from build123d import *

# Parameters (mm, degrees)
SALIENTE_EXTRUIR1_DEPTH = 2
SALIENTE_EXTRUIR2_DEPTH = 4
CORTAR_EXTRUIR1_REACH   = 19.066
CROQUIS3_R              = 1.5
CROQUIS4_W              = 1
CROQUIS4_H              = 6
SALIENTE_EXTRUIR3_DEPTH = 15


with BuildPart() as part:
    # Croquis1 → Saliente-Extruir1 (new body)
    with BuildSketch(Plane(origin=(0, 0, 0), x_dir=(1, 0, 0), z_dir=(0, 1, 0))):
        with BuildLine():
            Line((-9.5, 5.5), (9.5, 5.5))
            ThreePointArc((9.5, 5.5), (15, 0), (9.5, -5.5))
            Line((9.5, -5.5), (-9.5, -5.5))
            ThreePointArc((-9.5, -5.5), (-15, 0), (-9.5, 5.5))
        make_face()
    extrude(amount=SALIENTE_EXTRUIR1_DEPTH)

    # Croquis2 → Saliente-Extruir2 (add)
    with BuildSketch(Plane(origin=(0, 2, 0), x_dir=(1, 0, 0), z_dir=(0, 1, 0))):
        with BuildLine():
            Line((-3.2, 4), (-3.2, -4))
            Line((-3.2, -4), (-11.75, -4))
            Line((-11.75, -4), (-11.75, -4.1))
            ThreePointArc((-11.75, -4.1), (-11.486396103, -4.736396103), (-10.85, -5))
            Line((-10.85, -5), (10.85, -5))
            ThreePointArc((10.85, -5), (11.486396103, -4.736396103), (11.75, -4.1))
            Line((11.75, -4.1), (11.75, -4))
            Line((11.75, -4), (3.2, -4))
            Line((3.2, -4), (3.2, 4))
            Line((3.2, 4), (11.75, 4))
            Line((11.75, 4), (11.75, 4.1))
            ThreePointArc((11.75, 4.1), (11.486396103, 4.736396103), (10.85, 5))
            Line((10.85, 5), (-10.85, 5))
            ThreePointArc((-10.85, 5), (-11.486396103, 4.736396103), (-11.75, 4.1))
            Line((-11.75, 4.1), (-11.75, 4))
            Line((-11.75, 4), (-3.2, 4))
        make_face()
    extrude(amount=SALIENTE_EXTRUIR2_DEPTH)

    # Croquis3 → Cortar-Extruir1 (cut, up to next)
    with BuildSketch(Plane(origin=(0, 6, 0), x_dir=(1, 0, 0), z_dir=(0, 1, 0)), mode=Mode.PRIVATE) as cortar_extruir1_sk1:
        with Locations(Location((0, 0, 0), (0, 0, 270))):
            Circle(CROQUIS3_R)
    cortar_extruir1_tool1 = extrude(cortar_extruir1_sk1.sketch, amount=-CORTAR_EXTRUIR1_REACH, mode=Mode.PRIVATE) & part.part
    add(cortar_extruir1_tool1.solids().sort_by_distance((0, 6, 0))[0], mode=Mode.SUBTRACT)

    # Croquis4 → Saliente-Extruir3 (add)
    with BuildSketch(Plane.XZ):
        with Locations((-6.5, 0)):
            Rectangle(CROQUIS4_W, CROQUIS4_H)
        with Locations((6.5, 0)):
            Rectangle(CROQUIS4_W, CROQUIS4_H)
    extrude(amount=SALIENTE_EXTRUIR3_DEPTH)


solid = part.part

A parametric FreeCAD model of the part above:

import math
import FreeCAD as App
import Part
import Sketcher

V = App.Vector

doc = App.newDocument("Part")
params = doc.addObject("Spreadsheet::Sheet", "Params")
for row, (alias, value) in enumerate([
    ("sketch1_radius", "5.5 mm"),
    ("sketch1_width", "19 mm"),
    ("pad1_length", "2 mm"),
    ("sketch2_radius", "0.9 mm"),
    ("sketch2_height", "8 mm"),
    ("sketch2_width", "21.7 mm"),
    ("sketch2_height2", "0.1 mm"),
    ("sketch2_width2", "8.55 mm"),
    ("pad2_length", "4 mm"),
    ("sketch3_diameter", "3 mm"),
    ("sketch4_width", "1 mm"),
    ("sketch4_height", "6 mm"),
    ("pad3_length", "15 mm"),
], start=1):
    params.set(f"A{row}", alias)
    params.set(f"B{row}", "=" + value)
    params.setAlias(f"B{row}", alias)

body = doc.addObject("PartDesign::Body", "Body")

# Sketch on XZ plane
sketch1 = doc.addObject("Sketcher::SketchObject", "Sketch")
body.addObject(sketch1)
sketch1.AttachmentSupport = (doc.XZ_Plane, [""])
sketch1.MapMode = "FlatFace"
sketch1.addGeometry([
    Part.LineSegment(V(9.5, -5.5, 0), V(-9.5, -5.5, 0)),
    Part.ArcOfCircle(Part.Circle(V(-9.5, 0, 0), V(0, 0, 1), 5.5), math.radians(90), math.radians(270)),
    Part.LineSegment(V(-9.5, 5.5, 0), V(9.5, 5.5, 0)),
    Part.ArcOfCircle(Part.Circle(V(9.5, 0, 0), V(0, 0, 1), 5.5), math.radians(-90), math.radians(90)),
], False)
sketch1.addConstraint([
    Sketcher.Constraint("Tangent", 0, 2, 1, 2),
    Sketcher.Constraint("Tangent", 1, 1, 2, 1),
    Sketcher.Constraint("Tangent", 2, 2, 3, 2),
    Sketcher.Constraint("Tangent", 3, 1, 0, 1),
    Sketcher.Constraint("Horizontal", 0),
    Sketcher.Constraint("Horizontal", 2),
    Sketcher.Constraint("Symmetric", 1, 3, 3, 3, -1, 1),
    Sketcher.Constraint("Radius", 1, 5.5),
    Sketcher.Constraint("DistanceX", 0, 2, 0, 1, 19.0),
])
sketch1.setExpression("Constraints[7]", "Params.sketch1_radius")
sketch1.setExpression("Constraints[8]", "Params.sketch1_width")
pad1 = doc.addObject("PartDesign::Pad", "Pad")
body.addObject(pad1)
pad1.Profile = sketch1
pad1.setExpression("Length", "Params.pad1_length")
pad1.Reversed = True

# Sketch on XZ plane
sketch2 = doc.addObject("Sketcher::SketchObject", "Sketch001")
body.addObject(sketch2)
sketch2.AttachmentSupport = (doc.XZ_Plane, [""])
sketch2.MapMode = "FlatFace"
sketch2.AttachmentOffset = App.Placement(V(0, 0, -2), App.Rotation())
sketch2.addGeometry([
    Part.LineSegment(V(-3.2, -4, 0), V(-3.2, 4, 0)),  # 0
    Part.LineSegment(V(-3.2, 4, 0), V(-11.75, 4, 0)),  # 1
    Part.LineSegment(V(-11.75, 4, 0), V(-11.75, 4.1, 0)),  # 2
    Part.ArcOfCircle(Part.Circle(V(-10.85, 4.1, 0), V(0, 0, 1), 0.9), math.radians(90), math.radians(180)),  # 3
    Part.LineSegment(V(-10.85, 5, 0), V(10.85, 5, 0)),  # 4
    Part.ArcOfCircle(Part.Circle(V(10.85, 4.1, 0), V(0, 0, 1), 0.9), math.radians(0), math.radians(90)),  # 5
    Part.LineSegment(V(11.75, 4.1, 0), V(11.75, 4, 0)),  # 6
    Part.LineSegment(V(11.75, 4, 0), V(3.2, 4, 0)),  # 7
    Part.LineSegment(V(3.2, 4, 0), V(3.2, -4, 0)),  # 8
    Part.LineSegment(V(3.2, -4, 0), V(11.75, -4, 0)),  # 9
    Part.LineSegment(V(11.75, -4, 0), V(11.75, -4.1, 0)),  # 10
    Part.ArcOfCircle(Part.Circle(V(10.85, -4.1, 0), V(0, 0, 1), 0.9), math.radians(-90), math.radians(0)),  # 11
    Part.LineSegment(V(10.85, -5, 0), V(-10.85, -5, 0)),  # 12
    Part.ArcOfCircle(Part.Circle(V(-10.85, -4.1, 0), V(0, 0, 1), 0.9), math.radians(180), math.radians(270)),  # 13
    Part.LineSegment(V(-11.75, -4.1, 0), V(-11.75, -4, 0)),  # 14
    Part.LineSegment(V(-11.75, -4, 0), V(-3.2, -4, 0)),  # 15
], False)
sketch2.addConstraint([
    Sketcher.Constraint("Coincident", 0, 2, 1, 1),
    Sketcher.Constraint("Coincident", 1, 2, 2, 1),
    Sketcher.Constraint("Tangent", 2, 2, 3, 2),
    Sketcher.Constraint("Tangent", 3, 1, 4, 1),
    Sketcher.Constraint("Tangent", 4, 2, 5, 2),
    Sketcher.Constraint("Tangent", 5, 1, 6, 1),
    Sketcher.Constraint("Coincident", 6, 2, 7, 1),
    Sketcher.Constraint("Coincident", 7, 2, 8, 1),
    Sketcher.Constraint("Coincident", 8, 2, 9, 1),
    Sketcher.Constraint("Coincident", 9, 2, 10, 1),
    Sketcher.Constraint("Tangent", 10, 2, 11, 2),
    Sketcher.Constraint("Tangent", 11, 1, 12, 1),
    Sketcher.Constraint("Tangent", 12, 2, 13, 2),
    Sketcher.Constraint("Tangent", 13, 1, 14, 1),
    Sketcher.Constraint("Coincident", 14, 2, 15, 1),
    Sketcher.Constraint("Coincident", 15, 2, 0, 1),
    Sketcher.Constraint("Vertical", 0),
    Sketcher.Constraint("Horizontal", 1),
    Sketcher.Constraint("Vertical", 2),
    Sketcher.Constraint("Horizontal", 4),
    Sketcher.Constraint("Vertical", 6),
    Sketcher.Constraint("Horizontal", 7),
    Sketcher.Constraint("Vertical", 8),
    Sketcher.Constraint("Horizontal", 9),
    Sketcher.Constraint("Vertical", 10),
    Sketcher.Constraint("Horizontal", 12),
    Sketcher.Constraint("Vertical", 14),
    Sketcher.Constraint("Horizontal", 15),
    Sketcher.Constraint("Equal", 3, 5),
    Sketcher.Constraint("Equal", 5, 11),
    Sketcher.Constraint("Equal", 11, 13),
    Sketcher.Constraint("Symmetric", 3, 3, 11, 3, -1, 1),
    Sketcher.Constraint("Symmetric", 0, 2, 8, 2, -1, 1),
    Sketcher.Constraint("Symmetric", 6, 2, 14, 2, -1, 1),
    Sketcher.Constraint("Symmetric", 1, 2, 6, 2, -2),
    Sketcher.Constraint("Radius", 3, 0.9),
    Sketcher.Constraint("DistanceY", 0, 1, 0, 2, 8.0),
    Sketcher.Constraint("DistanceX", 4, 1, 4, 2, 21.7),
    Sketcher.Constraint("DistanceY", 2, 1, 2, 2, 0.1),
    Sketcher.Constraint("DistanceX", 1, 2, 1, 1, 8.55),
])
sketch2.setExpression("Constraints[35]", "Params.sketch2_radius")
sketch2.setExpression("Constraints[36]", "Params.sketch2_height")
sketch2.setExpression("Constraints[37]", "Params.sketch2_width")
sketch2.setExpression("Constraints[38]", "Params.sketch2_height2")
sketch2.setExpression("Constraints[39]", "Params.sketch2_width2")
pad2 = doc.addObject("PartDesign::Pad", "Pad001")
body.addObject(pad2)
pad2.Profile = sketch2
pad2.setExpression("Length", "Params.pad2_length")
pad2.Reversed = True

# Sketch on XZ plane
sketch3 = doc.addObject("Sketcher::SketchObject", "Sketch002")
body.addObject(sketch3)
sketch3.AttachmentSupport = (doc.XZ_Plane, [""])
sketch3.MapMode = "FlatFace"
sketch3.AttachmentOffset = App.Placement(V(0, 0, -6), App.Rotation())
sketch3.addGeometry(Part.Circle(V(0, 0, 0), V(0, 0, 1), 1.5), False)
sketch3.addConstraint([
    Sketcher.Constraint("Coincident", 0, 3, -1, 1),
    Sketcher.Constraint("Diameter", 0, 3.0),
])
sketch3.setExpression("Constraints[1]", "Params.sketch3_diameter")
pocket1 = doc.addObject("PartDesign::Pocket", "Pocket")
body.addObject(pocket1)
pocket1.Profile = sketch3
pocket1.Type = "UpToFirst"
pocket1.Reversed = True

# Sketch on XZ plane
sketch4 = doc.addObject("Sketcher::SketchObject", "Sketch003")
body.addObject(sketch4)
sketch4.AttachmentSupport = (doc.XZ_Plane, [""])
sketch4.MapMode = "FlatFace"
sketch4.addGeometry([
    Part.LineSegment(V(-7, 3, 0), V(-7, -3, 0)),  # 0
    Part.LineSegment(V(-7, -3, 0), V(-6, -3, 0)),  # 1
    Part.LineSegment(V(-6, -3, 0), V(-6, 3, 0)),  # 2
    Part.LineSegment(V(-6, 3, 0), V(-7, 3, 0)),  # 3
    Part.LineSegment(V(6, 3, 0), V(6, -3, 0)),  # 4
    Part.LineSegment(V(6, -3, 0), V(7, -3, 0)),  # 5
    Part.LineSegment(V(7, -3, 0), V(7, 3, 0)),  # 6
    Part.LineSegment(V(7, 3, 0), V(6, 3, 0)),  # 7
], False)
sketch4.addConstraint([
    Sketcher.Constraint("Coincident", 0, 2, 1, 1),
    Sketcher.Constraint("Coincident", 1, 2, 2, 1),
    Sketcher.Constraint("Coincident", 2, 2, 3, 1),
    Sketcher.Constraint("Coincident", 3, 2, 0, 1),
    Sketcher.Constraint("Coincident", 4, 2, 5, 1),
    Sketcher.Constraint("Coincident", 5, 2, 6, 1),
    Sketcher.Constraint("Coincident", 6, 2, 7, 1),
    Sketcher.Constraint("Coincident", 7, 2, 4, 1),
    Sketcher.Constraint("Vertical", 0),
    Sketcher.Constraint("Horizontal", 1),
    Sketcher.Constraint("Vertical", 2),
    Sketcher.Constraint("Horizontal", 3),
    Sketcher.Constraint("Vertical", 4),
    Sketcher.Constraint("Horizontal", 5),
    Sketcher.Constraint("Vertical", 6),
    Sketcher.Constraint("Horizontal", 7),
    Sketcher.Constraint("Symmetric", 2, 2, 4, 2, -1, 1),
    Sketcher.Constraint("Symmetric", 0, 2, 6, 2, -1, 1),
    Sketcher.Constraint("Horizontal", 1, 2, 4, 2),
    Sketcher.Constraint("DistanceX", 1, 1, 1, 2, 1.0),
    Sketcher.Constraint("DistanceY", 0, 2, 0, 1, 6.0),
    Sketcher.Constraint("DistanceX", 0, 2, -1, 1, 7.0),
])
sketch4.setExpression("Constraints[19]", "Params.sketch4_width")
sketch4.setExpression("Constraints[20]", "Params.sketch4_height")
pad3 = doc.addObject("PartDesign::Pad", "Pad002")
body.addObject(pad3)
pad3.Profile = sketch4
pad3.setExpression("Length", "Params.pad3_length")

doc.recompute()
